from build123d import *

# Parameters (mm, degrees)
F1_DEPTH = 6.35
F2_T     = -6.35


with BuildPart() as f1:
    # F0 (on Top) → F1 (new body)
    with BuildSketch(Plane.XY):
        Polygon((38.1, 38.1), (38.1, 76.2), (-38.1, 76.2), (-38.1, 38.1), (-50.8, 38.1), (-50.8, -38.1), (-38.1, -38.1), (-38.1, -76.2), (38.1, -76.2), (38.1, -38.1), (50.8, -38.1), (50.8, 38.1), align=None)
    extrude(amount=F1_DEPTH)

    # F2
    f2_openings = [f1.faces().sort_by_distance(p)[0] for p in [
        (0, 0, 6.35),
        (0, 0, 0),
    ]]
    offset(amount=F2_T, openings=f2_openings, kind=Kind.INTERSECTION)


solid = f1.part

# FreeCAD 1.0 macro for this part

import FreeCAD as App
import Part
import Sketcher
Q = App.Units.Quantity


def faces_at(feature, points):
    """Names of the faces that lie closest to the given points."""
    faces = feature.Shape.Faces
    near = lambda p: min(range(len(faces)), key=lambda i: faces[i].distToShape(Part.Vertex(*p))[0])
    return sorted({f"Face{near(p) + 1}" for p in points})

doc = App.newDocument("Part")
params = doc.addObject("Spreadsheet::Sheet", "Params")
for row, (alias, value) in enumerate([
    ("sketch1_width", "3 in"),
    ("sketch1_width2", "0.5 in"),
    ("sketch1_height", "1.5 in"),
    ("pad1_length", "0.25 in"),
    ("thickness_wall", "0.25 in"),
], start=1):
    params.set(f"A{row}", alias)
    params.set(f"B{row}", "=" + value)
    params.setAlias(f"B{row}", alias)

body = doc.addObject("PartDesign::Body", "Body")

sketch1 = doc.addObject("Sketcher::SketchObject", "Sketch")
body.addObject(sketch1)
sketch1.AttachmentSupport = (doc.XY_Plane, [""])
sketch1.MapMode = "FlatFace"
sketch1.addGeometry([
    Part.LineSegment(App.Vector(38.1, 38.1, 0), App.Vector(38.1, 76.2, 0)),
    Part.LineSegment(App.Vector(38.1, 76.2, 0), App.Vector(-38.1, 76.2, 0)),
    Part.LineSegment(App.Vector(-38.1, 76.2, 0), App.Vector(-38.1, 38.1, 0)),
    Part.LineSegment(App.Vector(-38.1, 38.1, 0), App.Vector(-50.8, 38.1, 0)),
    Part.LineSegment(App.Vector(-50.8, 38.1, 0), App.Vector(-50.8, -38.1, 0)),
    Part.LineSegment(App.Vector(-50.8, -38.1, 0), App.Vector(-38.1, -38.1, 0)),
    Part.LineSegment(App.Vector(-38.1, -38.1, 0), App.Vector(-38.1, -76.2, 0)),
    Part.LineSegment(App.Vector(-38.1, -76.2, 0), App.Vector(38.1, -76.2, 0)),
    Part.LineSegment(App.Vector(38.1, -76.2, 0), App.Vector(38.1, -38.1, 0)),
    Part.LineSegment(App.Vector(38.1, -38.1, 0), App.Vector(50.8, -38.1, 0)),
    Part.LineSegment(App.Vector(50.8, -38.1, 0), App.Vector(50.8, 38.1, 0)),
    Part.LineSegment(App.Vector(50.8, 38.1, 0), App.Vector(38.1, 38.1, 0)),
], False)
sketch1.addConstraint([
    Sketcher.Constraint("Coincident", 0, 2, 1, 1),
    Sketcher.Constraint("Coincident", 1, 2, 2, 1),
    Sketcher.Constraint("Coincident", 2, 2, 3, 1),
    Sketcher.Constraint("Coincident", 3, 2, 4, 1),
    Sketcher.Constraint("Coincident", 4, 2, 5, 1),
    Sketcher.Constraint("Coincident", 5, 2, 6, 1),
    Sketcher.Constraint("Coincident", 6, 2, 7, 1),
    Sketcher.Constraint("Coincident", 7, 2, 8, 1),
    Sketcher.Constraint("Coincident", 8, 2, 9, 1),
    Sketcher.Constraint("Coincident", 9, 2, 10, 1),
    Sketcher.Constraint("Coincident", 10, 2, 11, 1),
    Sketcher.Constraint("Coincident", 11, 2, 0, 1),
    Sketcher.Constraint("Vertical", 0),
    Sketcher.Constraint("Horizontal", 1),
    Sketcher.Constraint("Vertical", 2),
    Sketcher.Constraint("Horizontal", 3),
    Sketcher.Constraint("Vertical", 4),
    Sketcher.Constraint("Horizontal", 5),
    Sketcher.Constraint("Vertical", 6),
    Sketcher.Constraint("Horizontal", 7),
    Sketcher.Constraint("Vertical", 8),
    Sketcher.Constraint("Horizontal", 9),
    Sketcher.Constraint("Vertical", 10),
    Sketcher.Constraint("Horizontal", 11),
    Sketcher.Constraint("Symmetric", 0, 2, 6, 2, -1, 1),
    Sketcher.Constraint("Symmetric", 2, 2, 8, 2, -1, 1),
    Sketcher.Constraint("Symmetric", 4, 2, 10, 2, -1, 1),
    Sketcher.Constraint("Symmetric", 5, 2, 8, 2, -2),
    Sketcher.Constraint("Equal", 7, 4),
    Sketcher.Constraint("DistanceX", 1, 2, 1, 1, Q("3 in")),
    Sketcher.Constraint("DistanceX", 3, 2, 3, 1, Q("0.5 in")),
    Sketcher.Constraint("DistanceY", 0, 1, 0, 2, Q("1.5 in")),
])
sketch1.setExpression("Constraints[29]", "Params.sketch1_width")
sketch1.setExpression("Constraints[30]", "Params.sketch1_width2")
sketch1.setExpression("Constraints[31]", "Params.sketch1_height")
pad1 = doc.addObject("PartDesign::Pad", "Pad")
body.addObject(pad1)
pad1.Profile = sketch1
pad1.setExpression("Length", "Params.pad1_length")
doc.recompute()

thickness = doc.addObject("PartDesign::Thickness", "Thickness")
body.addObject(thickness)
thickness.Base = (pad1, faces_at(pad1, [(0, 0, 6.35), (0, 0, 0)]))
thickness.setExpression("Value", "Params.thickness_wall")
thickness.Reversed = True
thickness.Join = "Intersection"

doc.recompute()
